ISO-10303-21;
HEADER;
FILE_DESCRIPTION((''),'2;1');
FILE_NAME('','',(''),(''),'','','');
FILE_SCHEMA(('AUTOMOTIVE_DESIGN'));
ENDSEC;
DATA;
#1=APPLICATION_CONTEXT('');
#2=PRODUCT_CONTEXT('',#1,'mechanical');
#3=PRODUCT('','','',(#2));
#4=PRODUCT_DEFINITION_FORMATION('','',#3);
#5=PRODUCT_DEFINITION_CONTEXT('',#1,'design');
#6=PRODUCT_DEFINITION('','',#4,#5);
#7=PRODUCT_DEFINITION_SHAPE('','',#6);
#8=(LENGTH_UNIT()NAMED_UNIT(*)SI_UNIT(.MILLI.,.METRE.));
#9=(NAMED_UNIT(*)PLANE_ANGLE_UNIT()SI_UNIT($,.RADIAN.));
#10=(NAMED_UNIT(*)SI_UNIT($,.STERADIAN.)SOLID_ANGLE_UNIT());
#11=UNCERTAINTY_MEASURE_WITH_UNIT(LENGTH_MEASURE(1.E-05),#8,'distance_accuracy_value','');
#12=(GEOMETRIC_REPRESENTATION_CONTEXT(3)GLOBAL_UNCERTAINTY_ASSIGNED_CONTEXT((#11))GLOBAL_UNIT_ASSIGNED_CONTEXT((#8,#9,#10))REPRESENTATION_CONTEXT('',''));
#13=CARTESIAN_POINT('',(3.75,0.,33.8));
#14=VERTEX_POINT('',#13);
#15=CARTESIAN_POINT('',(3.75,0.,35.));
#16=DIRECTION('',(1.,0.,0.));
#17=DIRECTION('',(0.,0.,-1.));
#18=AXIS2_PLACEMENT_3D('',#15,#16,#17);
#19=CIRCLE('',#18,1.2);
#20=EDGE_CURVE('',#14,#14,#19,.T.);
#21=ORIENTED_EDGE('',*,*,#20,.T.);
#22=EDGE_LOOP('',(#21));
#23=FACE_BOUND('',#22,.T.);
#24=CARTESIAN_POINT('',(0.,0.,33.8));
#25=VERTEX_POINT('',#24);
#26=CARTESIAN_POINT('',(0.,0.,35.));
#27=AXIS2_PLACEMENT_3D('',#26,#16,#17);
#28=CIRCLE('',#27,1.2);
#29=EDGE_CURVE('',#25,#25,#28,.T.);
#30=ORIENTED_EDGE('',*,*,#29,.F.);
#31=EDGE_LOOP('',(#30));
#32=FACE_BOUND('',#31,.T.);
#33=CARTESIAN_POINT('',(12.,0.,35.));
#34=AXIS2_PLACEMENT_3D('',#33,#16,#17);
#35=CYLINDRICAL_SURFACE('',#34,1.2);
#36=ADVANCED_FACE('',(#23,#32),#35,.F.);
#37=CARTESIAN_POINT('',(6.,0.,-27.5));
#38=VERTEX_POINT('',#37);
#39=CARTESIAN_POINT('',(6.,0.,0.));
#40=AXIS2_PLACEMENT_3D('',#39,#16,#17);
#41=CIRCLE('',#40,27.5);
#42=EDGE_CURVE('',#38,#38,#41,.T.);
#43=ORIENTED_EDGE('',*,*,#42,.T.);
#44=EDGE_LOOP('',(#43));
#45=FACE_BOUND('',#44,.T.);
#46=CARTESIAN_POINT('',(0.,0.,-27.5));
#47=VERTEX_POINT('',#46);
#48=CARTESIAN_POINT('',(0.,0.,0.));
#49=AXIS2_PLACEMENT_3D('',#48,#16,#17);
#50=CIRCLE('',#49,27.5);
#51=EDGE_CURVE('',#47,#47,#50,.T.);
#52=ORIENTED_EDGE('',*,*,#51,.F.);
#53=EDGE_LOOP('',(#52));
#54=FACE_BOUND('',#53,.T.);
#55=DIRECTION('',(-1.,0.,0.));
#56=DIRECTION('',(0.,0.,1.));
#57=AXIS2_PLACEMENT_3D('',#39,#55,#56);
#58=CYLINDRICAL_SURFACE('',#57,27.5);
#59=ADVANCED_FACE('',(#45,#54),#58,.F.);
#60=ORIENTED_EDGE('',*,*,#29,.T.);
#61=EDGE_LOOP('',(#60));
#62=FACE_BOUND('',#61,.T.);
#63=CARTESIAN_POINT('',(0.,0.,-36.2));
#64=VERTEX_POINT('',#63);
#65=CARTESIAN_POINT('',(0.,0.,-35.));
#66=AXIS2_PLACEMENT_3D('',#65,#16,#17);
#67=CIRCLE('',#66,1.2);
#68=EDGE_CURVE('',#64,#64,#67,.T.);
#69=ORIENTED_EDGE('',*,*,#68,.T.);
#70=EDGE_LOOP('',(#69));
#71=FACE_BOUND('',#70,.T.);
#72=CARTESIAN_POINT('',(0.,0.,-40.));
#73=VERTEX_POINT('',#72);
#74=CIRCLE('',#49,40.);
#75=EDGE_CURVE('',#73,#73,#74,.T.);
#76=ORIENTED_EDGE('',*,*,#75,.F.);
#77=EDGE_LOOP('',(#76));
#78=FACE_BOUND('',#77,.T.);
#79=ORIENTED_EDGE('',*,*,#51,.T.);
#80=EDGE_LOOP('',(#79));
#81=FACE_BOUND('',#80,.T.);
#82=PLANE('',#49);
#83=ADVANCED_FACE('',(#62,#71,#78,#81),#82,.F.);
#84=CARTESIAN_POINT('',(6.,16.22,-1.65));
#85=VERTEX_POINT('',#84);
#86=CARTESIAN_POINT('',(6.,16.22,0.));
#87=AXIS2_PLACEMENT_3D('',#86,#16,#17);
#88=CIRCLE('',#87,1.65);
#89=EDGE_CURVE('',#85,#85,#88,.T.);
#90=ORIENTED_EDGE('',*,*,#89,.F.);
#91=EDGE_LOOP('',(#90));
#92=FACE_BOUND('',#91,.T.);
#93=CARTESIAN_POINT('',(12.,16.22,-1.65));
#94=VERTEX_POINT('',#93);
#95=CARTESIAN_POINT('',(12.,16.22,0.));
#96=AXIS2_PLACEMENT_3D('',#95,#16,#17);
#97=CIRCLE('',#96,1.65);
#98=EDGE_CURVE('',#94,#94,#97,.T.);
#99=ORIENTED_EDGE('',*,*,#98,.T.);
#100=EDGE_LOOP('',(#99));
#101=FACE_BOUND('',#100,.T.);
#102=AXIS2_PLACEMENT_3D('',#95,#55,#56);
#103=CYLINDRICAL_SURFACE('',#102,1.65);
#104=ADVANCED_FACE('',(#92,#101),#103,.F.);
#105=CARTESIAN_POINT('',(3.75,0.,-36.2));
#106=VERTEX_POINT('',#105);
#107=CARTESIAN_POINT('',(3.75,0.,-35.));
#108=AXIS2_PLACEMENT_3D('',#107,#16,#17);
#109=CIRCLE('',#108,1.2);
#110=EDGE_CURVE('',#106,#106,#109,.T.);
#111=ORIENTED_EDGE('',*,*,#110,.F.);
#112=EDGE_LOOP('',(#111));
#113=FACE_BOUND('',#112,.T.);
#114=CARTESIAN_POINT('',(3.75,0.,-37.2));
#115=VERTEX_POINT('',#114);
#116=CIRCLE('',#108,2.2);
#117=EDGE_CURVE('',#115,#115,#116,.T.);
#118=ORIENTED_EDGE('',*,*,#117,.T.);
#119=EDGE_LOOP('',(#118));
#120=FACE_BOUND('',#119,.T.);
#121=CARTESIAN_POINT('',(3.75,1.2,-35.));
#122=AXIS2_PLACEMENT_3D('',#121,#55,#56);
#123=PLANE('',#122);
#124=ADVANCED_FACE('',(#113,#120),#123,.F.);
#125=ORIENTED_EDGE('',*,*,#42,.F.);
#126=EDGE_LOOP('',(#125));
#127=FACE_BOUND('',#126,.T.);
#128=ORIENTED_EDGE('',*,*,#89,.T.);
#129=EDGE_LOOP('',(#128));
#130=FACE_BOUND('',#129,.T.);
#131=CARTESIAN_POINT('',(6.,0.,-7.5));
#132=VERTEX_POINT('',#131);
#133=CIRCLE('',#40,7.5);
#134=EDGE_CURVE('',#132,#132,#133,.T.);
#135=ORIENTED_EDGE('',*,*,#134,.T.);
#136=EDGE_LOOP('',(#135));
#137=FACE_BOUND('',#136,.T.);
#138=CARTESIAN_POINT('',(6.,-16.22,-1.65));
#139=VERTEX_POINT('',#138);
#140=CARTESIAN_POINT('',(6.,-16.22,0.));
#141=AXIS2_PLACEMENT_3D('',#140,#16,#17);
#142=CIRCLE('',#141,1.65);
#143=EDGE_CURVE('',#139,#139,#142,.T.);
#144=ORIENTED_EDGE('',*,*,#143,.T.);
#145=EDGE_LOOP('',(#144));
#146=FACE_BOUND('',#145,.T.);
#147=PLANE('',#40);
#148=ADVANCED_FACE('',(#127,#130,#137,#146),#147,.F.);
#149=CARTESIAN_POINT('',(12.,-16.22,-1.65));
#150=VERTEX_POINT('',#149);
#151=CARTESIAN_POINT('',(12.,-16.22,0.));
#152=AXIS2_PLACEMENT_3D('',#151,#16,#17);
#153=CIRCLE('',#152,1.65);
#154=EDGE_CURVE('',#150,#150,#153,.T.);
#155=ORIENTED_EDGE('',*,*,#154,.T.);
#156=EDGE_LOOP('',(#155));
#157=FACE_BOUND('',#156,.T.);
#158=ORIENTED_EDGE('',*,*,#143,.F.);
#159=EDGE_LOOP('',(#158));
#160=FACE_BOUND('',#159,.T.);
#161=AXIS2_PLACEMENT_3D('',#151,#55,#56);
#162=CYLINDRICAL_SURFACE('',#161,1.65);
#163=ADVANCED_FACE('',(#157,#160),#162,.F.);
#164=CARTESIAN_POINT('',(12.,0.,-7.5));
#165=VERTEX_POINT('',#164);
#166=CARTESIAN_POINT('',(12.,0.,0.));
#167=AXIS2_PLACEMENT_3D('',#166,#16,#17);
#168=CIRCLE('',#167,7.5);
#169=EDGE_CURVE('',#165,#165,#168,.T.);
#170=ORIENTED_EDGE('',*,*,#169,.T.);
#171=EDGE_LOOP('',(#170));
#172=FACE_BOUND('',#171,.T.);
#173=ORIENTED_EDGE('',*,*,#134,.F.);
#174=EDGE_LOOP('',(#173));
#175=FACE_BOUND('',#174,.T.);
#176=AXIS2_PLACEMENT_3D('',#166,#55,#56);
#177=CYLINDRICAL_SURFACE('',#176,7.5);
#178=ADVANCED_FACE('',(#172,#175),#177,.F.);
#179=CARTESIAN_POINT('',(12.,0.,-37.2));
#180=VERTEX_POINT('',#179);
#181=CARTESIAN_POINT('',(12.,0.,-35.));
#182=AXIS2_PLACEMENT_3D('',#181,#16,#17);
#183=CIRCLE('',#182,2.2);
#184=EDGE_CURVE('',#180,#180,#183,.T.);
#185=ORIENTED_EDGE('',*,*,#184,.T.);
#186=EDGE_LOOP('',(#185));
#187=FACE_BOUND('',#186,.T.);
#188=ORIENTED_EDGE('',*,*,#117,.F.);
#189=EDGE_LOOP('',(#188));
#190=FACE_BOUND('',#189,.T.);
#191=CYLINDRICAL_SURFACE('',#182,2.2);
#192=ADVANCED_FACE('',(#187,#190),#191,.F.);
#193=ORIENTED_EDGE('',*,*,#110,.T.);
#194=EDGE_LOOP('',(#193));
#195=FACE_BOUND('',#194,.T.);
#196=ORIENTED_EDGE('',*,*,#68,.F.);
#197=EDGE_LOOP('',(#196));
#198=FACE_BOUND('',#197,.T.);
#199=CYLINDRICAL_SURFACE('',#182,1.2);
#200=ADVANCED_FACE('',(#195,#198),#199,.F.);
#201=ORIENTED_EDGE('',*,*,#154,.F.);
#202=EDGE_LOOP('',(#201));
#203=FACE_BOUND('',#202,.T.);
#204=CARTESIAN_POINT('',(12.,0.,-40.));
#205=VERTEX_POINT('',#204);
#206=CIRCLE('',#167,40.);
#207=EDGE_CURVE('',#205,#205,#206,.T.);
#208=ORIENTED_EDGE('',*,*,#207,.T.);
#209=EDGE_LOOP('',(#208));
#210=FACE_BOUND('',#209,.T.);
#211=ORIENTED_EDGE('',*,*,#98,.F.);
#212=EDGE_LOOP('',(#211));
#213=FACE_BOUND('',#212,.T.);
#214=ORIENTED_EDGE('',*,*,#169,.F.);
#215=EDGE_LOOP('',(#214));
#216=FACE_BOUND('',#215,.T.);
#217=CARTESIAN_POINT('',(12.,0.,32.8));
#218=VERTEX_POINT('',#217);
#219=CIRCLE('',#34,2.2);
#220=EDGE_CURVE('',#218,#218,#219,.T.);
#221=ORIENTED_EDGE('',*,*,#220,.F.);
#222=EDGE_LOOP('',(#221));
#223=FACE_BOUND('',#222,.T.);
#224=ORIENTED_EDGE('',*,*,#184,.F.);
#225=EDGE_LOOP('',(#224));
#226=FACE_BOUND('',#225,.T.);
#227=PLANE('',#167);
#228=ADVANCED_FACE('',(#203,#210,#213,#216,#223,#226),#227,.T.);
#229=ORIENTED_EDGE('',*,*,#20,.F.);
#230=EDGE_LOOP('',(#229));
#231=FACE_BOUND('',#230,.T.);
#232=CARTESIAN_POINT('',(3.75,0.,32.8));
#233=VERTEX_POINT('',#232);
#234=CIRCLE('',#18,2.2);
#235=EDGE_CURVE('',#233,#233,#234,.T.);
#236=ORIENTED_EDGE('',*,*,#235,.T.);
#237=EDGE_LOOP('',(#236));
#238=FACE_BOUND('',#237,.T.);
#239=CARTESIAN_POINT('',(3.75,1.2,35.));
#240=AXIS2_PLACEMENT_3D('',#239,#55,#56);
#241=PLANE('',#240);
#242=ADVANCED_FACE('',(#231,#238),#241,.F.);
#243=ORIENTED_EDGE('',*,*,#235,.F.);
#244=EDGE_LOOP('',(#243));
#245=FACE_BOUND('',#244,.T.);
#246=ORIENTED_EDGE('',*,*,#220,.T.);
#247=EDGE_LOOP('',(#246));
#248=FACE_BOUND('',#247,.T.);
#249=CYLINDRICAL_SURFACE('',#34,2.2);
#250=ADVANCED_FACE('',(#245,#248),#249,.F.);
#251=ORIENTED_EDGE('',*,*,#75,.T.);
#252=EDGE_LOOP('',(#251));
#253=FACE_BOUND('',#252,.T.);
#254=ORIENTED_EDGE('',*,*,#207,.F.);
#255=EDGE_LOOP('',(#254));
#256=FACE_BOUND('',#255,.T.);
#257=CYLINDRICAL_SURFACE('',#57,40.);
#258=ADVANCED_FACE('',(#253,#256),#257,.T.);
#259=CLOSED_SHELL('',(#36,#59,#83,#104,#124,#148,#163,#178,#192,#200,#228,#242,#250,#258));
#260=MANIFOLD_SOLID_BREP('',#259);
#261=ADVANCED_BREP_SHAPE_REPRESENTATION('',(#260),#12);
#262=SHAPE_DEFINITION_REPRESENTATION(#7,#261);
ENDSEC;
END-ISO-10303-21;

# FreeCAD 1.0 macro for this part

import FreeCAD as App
import Part
import Sketcher

doc = App.newDocument("Part")
body = doc.addObject("PartDesign::Body", "Body")

# Sketch on YZ plane
sketch1 = doc.addObject("Sketcher::SketchObject", "Sketch")
body.addObject(sketch1)
sketch1.AttachmentSupport = (doc.YZ_Plane, [""])
sketch1.MapMode = "FlatFace"
sketch1.addGeometry(Part.Circle(App.Vector(0, 0, 0), App.Vector(0, 0, 1), 40), False)
sketch1.addGeometry(Part.Circle(App.Vector(0, 0, 0), App.Vector(0, 0, 1), 28), False)
sketch1.addConstraint(Sketcher.Constraint("Coincident", 0, 3, -1, 1))
sketch1.addConstraint(Sketcher.Constraint("Coincident", 1, 3, -1, 1))
sketch1.addConstraint(Sketcher.Constraint("Diameter", 0, 80.0))
sketch1.addConstraint(Sketcher.Constraint("Diameter", 1, 55.0))
pad1 = doc.addObject("PartDesign::Pad", "Pad")
body.addObject(pad1)
pad1.Profile = sketch1
pad1.Length = 6

# Sketch on YZ plane
sketch2 = doc.addObject("Sketcher::SketchObject", "Sketch001")
body.addObject(sketch2)
sketch2.AttachmentSupport = (doc.YZ_Plane, [""])
sketch2.MapMode = "FlatFace"
sketch2.AttachmentOffset = App.Placement(App.Vector(0, 0, 6), App.Rotation())
sketch2.addGeometry(Part.Circle(App.Vector(0, 0, 0), App.Vector(0, 0, 1), 40), False)
sketch2.addGeometry(Part.Circle(App.Vector(-16.2, 0, 0), App.Vector(0, 0, 1), 1.6), False)
sketch2.addGeometry(Part.Circle(App.Vector(16.2, 0, 0), App.Vector(0, 0, 1), 1.6), False)
sketch2.addGeometry(Part.Circle(App.Vector(0, 0, 0), App.Vector(0, 0, 1), 7.5), False)
sketch2.addConstraint(Sketcher.Constraint("Coincident", 0, 3, -1, 1))
sketch2.addConstraint(Sketcher.Constraint("Coincident", 3, 3, -1, 1))
sketch2.addConstraint(Sketcher.Constraint("Equal", 1, 2))
sketch2.addConstraint(Sketcher.Constraint("Symmetric", 1, 3, 2, 3, -1, 1))
sketch2.addConstraint(Sketcher.Constraint("PointOnObject", 1, 3, -1))
sketch2.addConstraint(Sketcher.Constraint("Diameter", 0, 80.0))
sketch2.addConstraint(Sketcher.Constraint("Diameter", 3, 15.0))
sketch2.addConstraint(Sketcher.Constraint("Diameter", 1, 3.3))
sketch2.addConstraint(Sketcher.Constraint("DistanceX", 1, 3, -1, 1, 16.22))
pad2 = doc.addObject("PartDesign::Pad", "Pad001")
body.addObject(pad2)
pad2.Profile = sketch2
pad2.Length = 6

# Sketch on YZ plane
sketch3 = doc.addObject("Sketcher::SketchObject", "Sketch002")
body.addObject(sketch3)
sketch3.AttachmentSupport = (doc.YZ_Plane, [""])
sketch3.MapMode = "FlatFace"
sketch3.AttachmentOffset = App.Placement(App.Vector(0, 0, 12), App.Rotation())
sketch3.addGeometry(Part.Circle(App.Vector(0, 0, 0), App.Vector(0, 0, 1), 1.2), False)
sketch3.addGeometry(Part.Circle(App.Vector(0, 35, 0), App.Vector(0, 0, 1), 1.2), False)
sketch3.addGeometry(Part.Circle(App.Vector(0, -35, 0), App.Vector(0, 0, 1), 1.2), False)
sketch3.addConstraint(Sketcher.Constraint("Coincident", 0, 3, -1, 1))
sketch3.addConstraint(Sketcher.Constraint("Equal", 0, 1))
sketch3.addConstraint(Sketcher.Constraint("Equal", 1, 2))
sketch3.addConstraint(Sketcher.Constraint("Symmetric", 1, 3, 2, 3, -1, 1))
sketch3.addConstraint(Sketcher.Constraint("PointOnObject", 1, 3, -2))
sketch3.addConstraint(Sketcher.Constraint("Diameter", 0, 2.4))
sketch3.addConstraint(Sketcher.Constraint("DistanceY", -1, 1, 1, 3, 35.0))
doc.recompute()
hole = doc.addObject("PartDesign::Hole", "Hole")
body.addObject(hole)
hole.Profile = sketch3
hole.ThreadType = "None"
hole.Diameter = 2.4
hole.DepthType = "Dimension"
hole.Depth = 12
hole.DrillPoint = "Flat"
hole.HoleCutType = "Counterbore"
hole.HoleCutDiameter = 4.4
hole.HoleCutDepth = 8.25

doc.recompute()
